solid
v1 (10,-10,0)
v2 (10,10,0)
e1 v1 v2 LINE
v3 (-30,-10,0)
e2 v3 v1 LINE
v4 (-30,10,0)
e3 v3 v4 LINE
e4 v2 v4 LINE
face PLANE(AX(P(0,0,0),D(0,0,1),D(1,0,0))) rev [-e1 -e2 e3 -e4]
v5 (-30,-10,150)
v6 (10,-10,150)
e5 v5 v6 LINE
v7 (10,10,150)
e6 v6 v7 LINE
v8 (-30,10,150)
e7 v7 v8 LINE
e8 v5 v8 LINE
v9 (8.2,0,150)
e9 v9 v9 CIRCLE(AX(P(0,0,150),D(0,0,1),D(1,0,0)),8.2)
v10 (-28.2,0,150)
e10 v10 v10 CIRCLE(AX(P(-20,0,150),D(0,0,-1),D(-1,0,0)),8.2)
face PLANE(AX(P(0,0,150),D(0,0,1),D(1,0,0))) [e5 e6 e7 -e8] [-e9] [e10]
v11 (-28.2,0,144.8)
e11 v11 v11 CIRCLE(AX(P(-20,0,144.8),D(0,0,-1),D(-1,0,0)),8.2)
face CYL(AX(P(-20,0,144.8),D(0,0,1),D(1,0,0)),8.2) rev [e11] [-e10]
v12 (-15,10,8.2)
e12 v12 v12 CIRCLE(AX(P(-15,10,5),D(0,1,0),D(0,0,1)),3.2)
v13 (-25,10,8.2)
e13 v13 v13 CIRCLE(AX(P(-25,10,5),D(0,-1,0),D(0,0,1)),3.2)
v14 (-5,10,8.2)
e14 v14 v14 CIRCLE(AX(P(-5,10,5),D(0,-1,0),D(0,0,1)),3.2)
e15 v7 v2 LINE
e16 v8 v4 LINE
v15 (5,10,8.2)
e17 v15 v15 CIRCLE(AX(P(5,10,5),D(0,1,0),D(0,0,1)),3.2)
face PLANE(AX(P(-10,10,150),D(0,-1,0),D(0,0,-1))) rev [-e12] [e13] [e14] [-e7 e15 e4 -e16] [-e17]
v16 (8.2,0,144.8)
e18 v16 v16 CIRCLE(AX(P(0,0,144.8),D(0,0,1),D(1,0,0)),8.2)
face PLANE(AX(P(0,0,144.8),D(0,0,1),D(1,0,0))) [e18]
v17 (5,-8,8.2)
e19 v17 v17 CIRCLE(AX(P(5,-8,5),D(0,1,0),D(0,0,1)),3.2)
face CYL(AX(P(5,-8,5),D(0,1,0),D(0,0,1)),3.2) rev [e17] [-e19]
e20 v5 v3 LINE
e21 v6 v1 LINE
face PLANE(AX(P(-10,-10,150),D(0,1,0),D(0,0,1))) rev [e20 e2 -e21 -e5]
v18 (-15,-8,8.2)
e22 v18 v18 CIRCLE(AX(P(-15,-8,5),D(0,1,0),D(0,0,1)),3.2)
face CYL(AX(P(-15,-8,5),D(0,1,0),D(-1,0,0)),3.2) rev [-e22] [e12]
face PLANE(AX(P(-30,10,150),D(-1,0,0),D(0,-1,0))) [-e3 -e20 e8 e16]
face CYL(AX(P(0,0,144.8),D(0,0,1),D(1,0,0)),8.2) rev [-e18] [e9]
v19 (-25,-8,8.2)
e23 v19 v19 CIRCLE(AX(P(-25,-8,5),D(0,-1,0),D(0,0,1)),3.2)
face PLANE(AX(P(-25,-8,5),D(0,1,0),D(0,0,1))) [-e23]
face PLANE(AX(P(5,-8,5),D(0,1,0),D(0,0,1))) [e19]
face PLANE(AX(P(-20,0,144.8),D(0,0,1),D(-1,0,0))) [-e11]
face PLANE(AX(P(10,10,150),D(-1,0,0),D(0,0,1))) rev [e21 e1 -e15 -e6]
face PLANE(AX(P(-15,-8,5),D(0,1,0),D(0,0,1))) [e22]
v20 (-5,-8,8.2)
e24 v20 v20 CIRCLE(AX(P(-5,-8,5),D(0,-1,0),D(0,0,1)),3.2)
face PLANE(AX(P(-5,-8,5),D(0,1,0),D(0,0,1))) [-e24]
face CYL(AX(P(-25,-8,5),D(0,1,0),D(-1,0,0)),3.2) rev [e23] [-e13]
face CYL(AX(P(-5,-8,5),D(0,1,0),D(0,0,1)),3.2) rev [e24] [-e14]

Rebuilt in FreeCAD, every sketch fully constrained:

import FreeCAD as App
import Part
import Sketcher
Q = App.Units.Quantity

doc = App.newDocument("Part")
params = doc.addObject("Spreadsheet::Sheet", "Params")
for row, (alias, value) in enumerate([
    ("sketch1_width", "20 mm"),
    ("pad1_length", "150 mm"),
    ("sketch2_diameter", "16.4 mm"),
    ("pocket1_length", "5.2 mm"),
    ("sketch3_diameter", "6.4 mm"),
    ("pocket2_length", "18 mm"),
    ("sketch4_diameter", "6.4 mm"),
    ("pocket3_length", "18 mm"),
], start=1):
    params.set(f"A{row}", alias)
    params.set(f"B{row}", "=" + value)
    params.setAlias(f"B{row}", alias)

body = doc.addObject("PartDesign::Body", "Body")

sketch1 = doc.addObject("Sketcher::SketchObject", "Sketch")
body.addObject(sketch1)
sketch1.AttachmentSupport = (doc.XY_Plane, [""])
sketch1.MapMode = "FlatFace"
sketch1.addGeometry(Part.LineSegment(App.Vector(-10, 10, 0), App.Vector(-10, -10, 0)), False)
sketch1.addGeometry(Part.LineSegment(App.Vector(-10, -10, 0), App.Vector(10, -10, 0)), False)
sketch1.addGeometry(Part.LineSegment(App.Vector(10, -10, 0), App.Vector(10, 10, 0)), False)
sketch1.addGeometry(Part.LineSegment(App.Vector(10, 10, 0), App.Vector(-10, 10, 0)), False)
sketch1.addConstraint(Sketcher.Constraint("Coincident", 0, 2, 1, 1))
sketch1.addConstraint(Sketcher.Constraint("Coincident", 1, 2, 2, 1))
sketch1.addConstraint(Sketcher.Constraint("Coincident", 2, 2, 3, 1))
sketch1.addConstraint(Sketcher.Constraint("Coincident", 3, 2, 0, 1))
sketch1.addConstraint(Sketcher.Constraint("Vertical", 0))
sketch1.addConstraint(Sketcher.Constraint("Horizontal", 1))
sketch1.addConstraint(Sketcher.Constraint("Vertical", 2))
sketch1.addConstraint(Sketcher.Constraint("Horizontal", 3))
sketch1.addConstraint(Sketcher.Constraint("Symmetric", 0, 2, 2, 2, -1, 1))
sketch1.addConstraint(Sketcher.Constraint("Equal", 3, 0))
sketch1.addConstraint(Sketcher.Constraint("DistanceX", 1, 1, 1, 2, Q("20 mm")))
sketch1.setExpression("Constraints[10]", "Params.sketch1_width")
pad1 = doc.addObject("PartDesign::Pad", "Pad")
body.addObject(pad1)
pad1.Profile = sketch1
pad1.setExpression("Length", "Params.pad1_length")

sketch2 = doc.addObject("Sketcher::SketchObject", "Sketch001")
body.addObject(sketch2)
sketch2.AttachmentSupport = (doc.XY_Plane, [""])
sketch2.MapMode = "FlatFace"
sketch2.AttachmentOffset = App.Placement(App.Vector(0, 0, 150), App.Rotation())
sketch2.addGeometry(Part.Circle(App.Vector(0, 0, 0), App.Vector(0, 0, 1), 8.2), False)
sketch2.addConstraint(Sketcher.Constraint("Coincident", 0, 3, -1, 1))
sketch2.addConstraint(Sketcher.Constraint("Diameter", 0, Q("16.4 mm")))
sketch2.setExpression("Constraints[1]", "Params.sketch2_diameter")
pocket1 = doc.addObject("PartDesign::Pocket", "Pocket")
body.addObject(pocket1)
pocket1.Profile = sketch2
pocket1.setExpression("Length", "Params.pocket1_length")

sketch3 = doc.addObject("Sketcher::SketchObject", "Sketch002")
body.addObject(sketch3)
sketch3.AttachmentSupport = (doc.XZ_Plane, [""])
sketch3.MapMode = "FlatFace"
sketch3.AttachmentOffset = App.Placement(App.Vector(0, 0, -10), App.Rotation())
sketch3.addGeometry(Part.Circle(App.Vector(5, 5, 0), App.Vector(0, 0, 1), 3.2), False)
sketch3.addConstraint(Sketcher.Constraint("Diameter", 0, Q("6.4 mm")))
sketch3.addConstraint(Sketcher.Constraint("DistanceX", -1, 1, 0, 3, Q("5 mm")))
sketch3.addConstraint(Sketcher.Constraint("DistanceY", -1, 1, 0, 3, Q("5 mm")))
sketch3.setExpression("Constraints[0]", "Params.sketch3_diameter")
pocket2 = doc.addObject("PartDesign::Pocket", "Pocket001")
body.addObject(pocket2)
pocket2.Profile = sketch3
pocket2.setExpression("Length", "Params.pocket2_length")
pocket2.Reversed = True
doc.recompute()

mirrored = doc.addObject("PartDesign::Mirrored", "Mirrored")
body.addObject(mirrored)
mirrored.Originals = [pocket2]
mirrored.MirrorPlane = (doc.YZ_Plane, [""])
body.Tip = mirrored
doc.recompute()

datumplane = doc.addObject("PartDesign::Plane", "DatumPlane")
body.addObject(datumplane)
datumplane.AttachmentSupport = (doc.YZ_Plane, [""])
datumplane.MapMode = "FlatFace"
datumplane.AttachmentOffset = App.Placement(App.Vector(0, 0, -10), App.Rotation())
mirrored2 = doc.addObject("PartDesign::Mirrored", "Mirrored001")
body.addObject(mirrored2)
mirrored2.Originals = [pad1, pocket1, pocket2]
mirrored2.MirrorPlane = (datumplane, [""])
body.Tip = mirrored2

sketch4 = doc.addObject("Sketcher::SketchObject", "Sketch003")
body.addObject(sketch4)
sketch4.AttachmentSupport = (doc.XZ_Plane, [""])
sketch4.MapMode = "FlatFace"
sketch4.AttachmentOffset = App.Placement(App.Vector(0, 0, -10), App.Rotation())
sketch4.addGeometry(Part.Circle(App.Vector(-15, 5, 0), App.Vector(0, 0, 1), 3.2), False)
sketch4.addConstraint(Sketcher.Constraint("Diameter", 0, Q("6.4 mm")))
sketch4.addConstraint(Sketcher.Constraint("DistanceX", 0, 3, -1, 1, Q("15 mm")))
sketch4.addConstraint(Sketcher.Constraint("DistanceY", -1, 1, 0, 3, Q("5 mm")))
sketch4.setExpression("Constraints[0]", "Params.sketch4_diameter")
pocket3 = doc.addObject("PartDesign::Pocket", "Pocket002")
body.addObject(pocket3)
pocket3.Profile = sketch4
pocket3.setExpression("Length", "Params.pocket3_length")
pocket3.Reversed = True

doc.recompute()
